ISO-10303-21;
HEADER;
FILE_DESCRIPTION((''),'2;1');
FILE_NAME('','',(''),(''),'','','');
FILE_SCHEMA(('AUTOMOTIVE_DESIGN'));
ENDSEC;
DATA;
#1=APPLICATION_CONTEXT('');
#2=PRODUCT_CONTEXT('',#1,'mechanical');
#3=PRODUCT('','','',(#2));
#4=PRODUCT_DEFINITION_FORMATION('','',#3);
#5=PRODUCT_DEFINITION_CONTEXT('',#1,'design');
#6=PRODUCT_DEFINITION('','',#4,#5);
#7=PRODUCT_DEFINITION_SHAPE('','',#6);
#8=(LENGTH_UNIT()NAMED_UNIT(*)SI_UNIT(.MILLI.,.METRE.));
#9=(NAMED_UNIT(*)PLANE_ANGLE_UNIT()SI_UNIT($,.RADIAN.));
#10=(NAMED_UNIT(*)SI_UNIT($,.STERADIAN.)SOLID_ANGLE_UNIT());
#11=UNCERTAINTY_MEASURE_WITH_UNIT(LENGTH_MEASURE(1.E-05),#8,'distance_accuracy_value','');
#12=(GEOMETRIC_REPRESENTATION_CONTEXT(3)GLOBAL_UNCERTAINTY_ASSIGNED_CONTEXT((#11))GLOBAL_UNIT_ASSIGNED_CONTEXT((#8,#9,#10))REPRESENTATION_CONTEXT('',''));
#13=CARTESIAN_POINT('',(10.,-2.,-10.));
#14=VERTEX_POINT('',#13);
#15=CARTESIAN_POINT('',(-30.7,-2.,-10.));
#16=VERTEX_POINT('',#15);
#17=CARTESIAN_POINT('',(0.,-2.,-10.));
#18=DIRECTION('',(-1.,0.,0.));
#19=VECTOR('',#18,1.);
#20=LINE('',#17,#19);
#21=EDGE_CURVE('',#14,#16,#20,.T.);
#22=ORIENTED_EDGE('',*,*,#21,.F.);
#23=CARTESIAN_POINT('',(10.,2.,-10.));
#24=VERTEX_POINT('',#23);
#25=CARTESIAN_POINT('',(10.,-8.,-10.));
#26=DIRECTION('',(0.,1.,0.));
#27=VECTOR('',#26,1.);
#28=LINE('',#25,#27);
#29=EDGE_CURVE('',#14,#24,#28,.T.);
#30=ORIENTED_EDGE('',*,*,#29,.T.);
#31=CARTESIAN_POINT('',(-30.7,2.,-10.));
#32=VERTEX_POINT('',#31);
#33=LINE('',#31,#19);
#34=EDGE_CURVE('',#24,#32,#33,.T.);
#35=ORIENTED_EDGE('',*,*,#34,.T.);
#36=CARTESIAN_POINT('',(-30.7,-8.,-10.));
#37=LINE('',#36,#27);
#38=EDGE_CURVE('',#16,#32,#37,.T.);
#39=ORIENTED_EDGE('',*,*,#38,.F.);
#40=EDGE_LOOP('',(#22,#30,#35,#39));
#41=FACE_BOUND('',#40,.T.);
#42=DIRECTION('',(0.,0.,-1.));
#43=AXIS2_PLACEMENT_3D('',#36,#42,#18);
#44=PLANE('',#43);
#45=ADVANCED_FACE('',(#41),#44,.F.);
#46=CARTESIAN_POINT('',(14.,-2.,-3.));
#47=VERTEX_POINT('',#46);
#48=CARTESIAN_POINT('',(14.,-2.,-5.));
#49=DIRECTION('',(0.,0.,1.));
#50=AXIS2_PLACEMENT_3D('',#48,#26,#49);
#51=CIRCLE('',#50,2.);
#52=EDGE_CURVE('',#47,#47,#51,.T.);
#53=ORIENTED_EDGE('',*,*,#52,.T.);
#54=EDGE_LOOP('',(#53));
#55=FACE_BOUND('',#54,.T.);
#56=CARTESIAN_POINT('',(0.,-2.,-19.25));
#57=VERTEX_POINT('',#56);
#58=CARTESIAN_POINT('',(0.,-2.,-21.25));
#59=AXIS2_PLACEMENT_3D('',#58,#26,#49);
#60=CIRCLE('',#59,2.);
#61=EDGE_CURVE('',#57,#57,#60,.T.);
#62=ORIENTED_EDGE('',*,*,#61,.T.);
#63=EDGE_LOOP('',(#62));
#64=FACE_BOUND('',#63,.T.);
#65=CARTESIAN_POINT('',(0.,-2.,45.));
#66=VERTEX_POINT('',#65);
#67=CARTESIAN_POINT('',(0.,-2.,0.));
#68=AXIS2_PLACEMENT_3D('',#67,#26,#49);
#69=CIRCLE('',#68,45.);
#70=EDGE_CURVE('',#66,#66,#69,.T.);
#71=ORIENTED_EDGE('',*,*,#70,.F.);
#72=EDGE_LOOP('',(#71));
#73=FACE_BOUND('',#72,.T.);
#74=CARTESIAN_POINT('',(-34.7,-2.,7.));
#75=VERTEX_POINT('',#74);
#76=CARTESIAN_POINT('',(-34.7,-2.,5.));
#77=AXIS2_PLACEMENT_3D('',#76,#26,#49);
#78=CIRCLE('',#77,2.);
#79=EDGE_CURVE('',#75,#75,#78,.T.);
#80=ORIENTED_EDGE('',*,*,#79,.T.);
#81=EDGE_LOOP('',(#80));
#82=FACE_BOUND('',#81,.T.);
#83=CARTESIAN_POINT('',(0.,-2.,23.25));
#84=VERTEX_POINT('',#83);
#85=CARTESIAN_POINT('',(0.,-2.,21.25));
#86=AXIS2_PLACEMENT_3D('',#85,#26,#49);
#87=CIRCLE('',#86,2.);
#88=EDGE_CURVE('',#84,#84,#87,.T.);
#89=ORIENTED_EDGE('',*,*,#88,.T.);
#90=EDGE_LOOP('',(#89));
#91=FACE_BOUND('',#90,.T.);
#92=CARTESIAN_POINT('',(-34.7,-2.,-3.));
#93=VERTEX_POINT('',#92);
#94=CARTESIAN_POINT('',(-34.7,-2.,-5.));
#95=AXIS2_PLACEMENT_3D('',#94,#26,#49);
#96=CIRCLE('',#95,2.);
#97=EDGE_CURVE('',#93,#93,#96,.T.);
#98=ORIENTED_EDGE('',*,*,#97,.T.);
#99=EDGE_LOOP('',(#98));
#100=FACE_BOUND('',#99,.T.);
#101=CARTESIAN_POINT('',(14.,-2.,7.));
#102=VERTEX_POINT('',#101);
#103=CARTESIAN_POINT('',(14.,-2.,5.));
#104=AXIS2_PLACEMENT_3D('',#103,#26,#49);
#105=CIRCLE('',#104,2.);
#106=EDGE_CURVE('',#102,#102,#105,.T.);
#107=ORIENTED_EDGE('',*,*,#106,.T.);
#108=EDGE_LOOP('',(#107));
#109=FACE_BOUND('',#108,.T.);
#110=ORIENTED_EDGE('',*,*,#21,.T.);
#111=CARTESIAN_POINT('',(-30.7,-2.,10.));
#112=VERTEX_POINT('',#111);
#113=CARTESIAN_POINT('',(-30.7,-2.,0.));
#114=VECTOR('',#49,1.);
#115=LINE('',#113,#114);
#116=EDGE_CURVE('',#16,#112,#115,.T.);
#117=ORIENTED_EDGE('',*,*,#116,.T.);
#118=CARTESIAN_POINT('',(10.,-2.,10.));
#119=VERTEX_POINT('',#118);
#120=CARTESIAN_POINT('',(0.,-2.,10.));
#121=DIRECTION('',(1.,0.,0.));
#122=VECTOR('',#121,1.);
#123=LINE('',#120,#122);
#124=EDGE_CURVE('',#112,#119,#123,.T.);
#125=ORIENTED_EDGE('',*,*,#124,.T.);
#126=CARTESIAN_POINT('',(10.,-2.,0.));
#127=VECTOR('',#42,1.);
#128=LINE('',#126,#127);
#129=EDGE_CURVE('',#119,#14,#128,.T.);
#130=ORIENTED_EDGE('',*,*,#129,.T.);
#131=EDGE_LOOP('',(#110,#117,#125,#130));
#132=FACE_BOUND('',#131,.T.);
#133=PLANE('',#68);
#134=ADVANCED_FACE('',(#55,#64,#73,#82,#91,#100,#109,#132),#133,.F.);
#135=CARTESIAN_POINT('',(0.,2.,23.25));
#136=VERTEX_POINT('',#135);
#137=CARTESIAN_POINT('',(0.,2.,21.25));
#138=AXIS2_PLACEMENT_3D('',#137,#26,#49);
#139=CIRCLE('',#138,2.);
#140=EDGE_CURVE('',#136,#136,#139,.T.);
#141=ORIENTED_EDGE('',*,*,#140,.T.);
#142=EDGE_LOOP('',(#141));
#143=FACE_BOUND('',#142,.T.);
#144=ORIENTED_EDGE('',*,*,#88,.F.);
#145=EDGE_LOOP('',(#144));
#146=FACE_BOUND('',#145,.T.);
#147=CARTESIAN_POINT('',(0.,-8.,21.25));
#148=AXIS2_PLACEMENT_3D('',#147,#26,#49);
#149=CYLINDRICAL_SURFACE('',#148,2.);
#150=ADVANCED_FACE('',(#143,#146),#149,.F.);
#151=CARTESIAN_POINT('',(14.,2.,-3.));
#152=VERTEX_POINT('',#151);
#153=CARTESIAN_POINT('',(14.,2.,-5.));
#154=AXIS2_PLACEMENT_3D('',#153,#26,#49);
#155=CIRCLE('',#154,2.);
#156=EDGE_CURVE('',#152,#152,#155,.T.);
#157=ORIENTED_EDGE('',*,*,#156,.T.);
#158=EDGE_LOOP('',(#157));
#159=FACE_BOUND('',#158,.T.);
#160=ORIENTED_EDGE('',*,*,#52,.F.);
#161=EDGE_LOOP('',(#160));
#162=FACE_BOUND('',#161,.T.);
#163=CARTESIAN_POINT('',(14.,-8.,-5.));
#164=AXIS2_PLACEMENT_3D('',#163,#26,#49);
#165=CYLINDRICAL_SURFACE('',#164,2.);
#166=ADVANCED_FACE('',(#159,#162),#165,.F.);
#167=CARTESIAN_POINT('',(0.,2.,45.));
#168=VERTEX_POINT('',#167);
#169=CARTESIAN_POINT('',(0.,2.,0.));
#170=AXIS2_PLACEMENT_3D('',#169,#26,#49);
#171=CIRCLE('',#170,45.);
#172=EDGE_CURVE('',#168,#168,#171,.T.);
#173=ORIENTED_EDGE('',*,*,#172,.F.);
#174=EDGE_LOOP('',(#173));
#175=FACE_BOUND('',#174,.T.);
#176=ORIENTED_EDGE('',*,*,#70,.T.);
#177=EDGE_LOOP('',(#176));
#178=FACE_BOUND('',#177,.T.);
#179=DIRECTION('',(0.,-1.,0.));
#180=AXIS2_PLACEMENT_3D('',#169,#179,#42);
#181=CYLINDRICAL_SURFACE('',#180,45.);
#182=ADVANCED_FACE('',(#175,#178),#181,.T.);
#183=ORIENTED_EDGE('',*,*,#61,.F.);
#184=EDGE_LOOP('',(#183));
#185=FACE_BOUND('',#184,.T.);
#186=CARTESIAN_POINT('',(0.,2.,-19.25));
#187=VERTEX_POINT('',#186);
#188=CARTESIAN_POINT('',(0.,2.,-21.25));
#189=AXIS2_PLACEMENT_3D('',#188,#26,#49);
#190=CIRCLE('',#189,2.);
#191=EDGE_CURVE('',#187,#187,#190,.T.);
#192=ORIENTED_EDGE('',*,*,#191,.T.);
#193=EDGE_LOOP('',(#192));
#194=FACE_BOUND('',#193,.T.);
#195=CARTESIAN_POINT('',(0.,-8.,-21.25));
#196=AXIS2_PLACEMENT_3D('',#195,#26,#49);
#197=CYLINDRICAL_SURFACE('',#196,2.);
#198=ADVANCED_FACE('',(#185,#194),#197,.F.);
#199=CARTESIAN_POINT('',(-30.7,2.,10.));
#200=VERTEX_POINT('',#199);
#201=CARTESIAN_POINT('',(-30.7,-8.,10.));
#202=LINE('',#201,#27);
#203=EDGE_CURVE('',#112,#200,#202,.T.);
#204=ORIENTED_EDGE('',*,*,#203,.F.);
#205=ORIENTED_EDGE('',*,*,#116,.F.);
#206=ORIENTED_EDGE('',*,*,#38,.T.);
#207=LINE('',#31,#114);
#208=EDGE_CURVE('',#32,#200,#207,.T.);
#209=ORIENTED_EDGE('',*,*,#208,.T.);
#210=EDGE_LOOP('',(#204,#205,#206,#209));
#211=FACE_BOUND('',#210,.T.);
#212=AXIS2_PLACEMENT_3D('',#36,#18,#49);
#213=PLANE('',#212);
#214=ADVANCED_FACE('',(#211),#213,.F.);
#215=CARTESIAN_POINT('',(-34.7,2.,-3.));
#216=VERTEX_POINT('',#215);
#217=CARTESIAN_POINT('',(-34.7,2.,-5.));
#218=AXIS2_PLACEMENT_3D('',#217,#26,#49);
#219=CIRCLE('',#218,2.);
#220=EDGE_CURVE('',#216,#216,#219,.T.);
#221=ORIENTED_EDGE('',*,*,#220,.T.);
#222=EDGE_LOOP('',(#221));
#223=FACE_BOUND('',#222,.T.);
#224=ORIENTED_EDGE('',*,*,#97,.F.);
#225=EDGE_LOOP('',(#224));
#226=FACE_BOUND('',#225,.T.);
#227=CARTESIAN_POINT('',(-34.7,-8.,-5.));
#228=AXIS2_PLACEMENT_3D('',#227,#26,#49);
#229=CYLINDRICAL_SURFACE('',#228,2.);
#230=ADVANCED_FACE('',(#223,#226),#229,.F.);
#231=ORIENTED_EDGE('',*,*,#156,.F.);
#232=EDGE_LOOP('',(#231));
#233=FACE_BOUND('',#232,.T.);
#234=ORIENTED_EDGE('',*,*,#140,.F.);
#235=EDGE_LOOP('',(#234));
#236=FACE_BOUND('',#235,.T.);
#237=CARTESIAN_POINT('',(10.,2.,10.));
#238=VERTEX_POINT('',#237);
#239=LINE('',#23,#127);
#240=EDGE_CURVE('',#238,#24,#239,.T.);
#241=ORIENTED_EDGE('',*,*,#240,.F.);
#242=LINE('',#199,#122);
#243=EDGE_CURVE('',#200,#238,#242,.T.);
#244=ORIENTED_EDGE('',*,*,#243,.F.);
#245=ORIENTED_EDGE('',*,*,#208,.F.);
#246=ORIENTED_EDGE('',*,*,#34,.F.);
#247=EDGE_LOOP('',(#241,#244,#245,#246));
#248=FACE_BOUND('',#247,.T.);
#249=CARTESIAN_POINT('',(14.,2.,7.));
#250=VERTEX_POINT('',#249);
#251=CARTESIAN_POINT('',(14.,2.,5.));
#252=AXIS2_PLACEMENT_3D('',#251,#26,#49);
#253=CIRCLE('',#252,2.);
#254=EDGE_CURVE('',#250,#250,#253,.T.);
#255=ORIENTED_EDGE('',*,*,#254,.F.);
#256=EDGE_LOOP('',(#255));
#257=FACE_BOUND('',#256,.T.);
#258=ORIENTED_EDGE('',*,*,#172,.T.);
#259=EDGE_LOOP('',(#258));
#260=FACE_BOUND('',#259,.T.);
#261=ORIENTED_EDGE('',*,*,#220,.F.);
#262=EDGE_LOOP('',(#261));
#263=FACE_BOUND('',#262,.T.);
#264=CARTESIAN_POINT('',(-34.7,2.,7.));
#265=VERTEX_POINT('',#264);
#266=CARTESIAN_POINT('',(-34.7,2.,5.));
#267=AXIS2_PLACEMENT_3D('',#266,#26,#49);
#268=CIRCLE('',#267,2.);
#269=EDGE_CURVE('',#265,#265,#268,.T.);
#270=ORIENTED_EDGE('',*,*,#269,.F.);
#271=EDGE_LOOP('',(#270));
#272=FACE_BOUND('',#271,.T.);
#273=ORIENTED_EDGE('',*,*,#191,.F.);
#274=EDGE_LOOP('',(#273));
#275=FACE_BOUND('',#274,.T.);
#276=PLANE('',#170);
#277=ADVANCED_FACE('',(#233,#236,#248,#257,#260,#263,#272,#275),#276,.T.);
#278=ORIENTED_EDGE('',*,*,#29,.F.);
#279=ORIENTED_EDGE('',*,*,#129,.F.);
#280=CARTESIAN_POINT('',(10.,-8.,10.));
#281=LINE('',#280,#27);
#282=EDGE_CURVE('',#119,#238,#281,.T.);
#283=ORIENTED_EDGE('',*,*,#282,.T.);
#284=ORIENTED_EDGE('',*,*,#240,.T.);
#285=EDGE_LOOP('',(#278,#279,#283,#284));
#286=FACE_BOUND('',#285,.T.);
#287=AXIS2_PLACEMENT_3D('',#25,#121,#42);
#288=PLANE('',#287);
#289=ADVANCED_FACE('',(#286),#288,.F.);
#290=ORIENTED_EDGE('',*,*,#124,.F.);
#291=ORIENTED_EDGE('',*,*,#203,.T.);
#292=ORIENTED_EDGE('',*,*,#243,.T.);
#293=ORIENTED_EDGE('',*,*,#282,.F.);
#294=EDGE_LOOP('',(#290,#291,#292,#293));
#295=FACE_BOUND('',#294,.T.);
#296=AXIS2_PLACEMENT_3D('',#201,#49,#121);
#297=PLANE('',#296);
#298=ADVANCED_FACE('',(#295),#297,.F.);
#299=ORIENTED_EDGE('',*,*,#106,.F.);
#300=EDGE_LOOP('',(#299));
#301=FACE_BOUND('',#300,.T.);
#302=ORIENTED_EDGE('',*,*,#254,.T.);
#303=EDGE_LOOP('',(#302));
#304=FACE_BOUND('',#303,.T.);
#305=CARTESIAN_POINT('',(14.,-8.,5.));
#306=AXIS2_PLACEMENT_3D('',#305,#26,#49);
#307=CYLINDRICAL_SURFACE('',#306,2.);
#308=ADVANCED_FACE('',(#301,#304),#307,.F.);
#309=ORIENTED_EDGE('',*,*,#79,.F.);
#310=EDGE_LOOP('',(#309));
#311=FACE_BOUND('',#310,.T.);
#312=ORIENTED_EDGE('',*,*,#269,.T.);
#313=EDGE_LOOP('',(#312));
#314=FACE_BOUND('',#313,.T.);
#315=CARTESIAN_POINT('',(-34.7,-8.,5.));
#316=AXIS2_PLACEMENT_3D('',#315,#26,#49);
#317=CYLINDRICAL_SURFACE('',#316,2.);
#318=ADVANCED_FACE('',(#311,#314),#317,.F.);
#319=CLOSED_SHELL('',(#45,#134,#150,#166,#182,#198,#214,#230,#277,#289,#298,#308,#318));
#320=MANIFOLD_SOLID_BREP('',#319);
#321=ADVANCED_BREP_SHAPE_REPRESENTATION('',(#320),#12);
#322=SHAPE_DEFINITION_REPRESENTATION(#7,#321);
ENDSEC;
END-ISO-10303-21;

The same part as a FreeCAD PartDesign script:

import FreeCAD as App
import Part
import Sketcher
from FreeCAD import Vector

doc = App.newDocument("Part")
body = doc.addObject("PartDesign::Body", "Body")

sketch1 = body.newObject("Sketcher::SketchObject", "Sketch")
sketch1.AttachmentSupport = (doc.getObject("XZ_Plane"), [""])
sketch1.MapMode = "FlatFace"
sketch1.addGeometry(Part.Circle(Vector(0, 0, 0), Vector(0, 0, 1), 45), False)
sketch1.addConstraint([
    Sketcher.Constraint("Coincident", 0, 3, -1, 1),
    Sketcher.Constraint("Diameter", 0, 90.0),
])
pad1 = body.newObject("PartDesign::Pad", "Pad")
pad1.Profile = sketch1
pad1.Length = 4
pad1.Midplane = True

sketch2 = body.newObject("Sketcher::SketchObject", "Sketch001")
sketch2.AttachmentSupport = (doc.getObject("XZ_Plane"), [""])
sketch2.MapMode = "FlatFace"
sketch2.AttachmentOffset = App.Placement(Vector(0, 0, -2), App.Rotation())
sketch2.addGeometry([
    Part.Circle(Vector(-34.7, -5, 0), Vector(0, 0, 1), 2),
    Part.Circle(Vector(-34.7, 5, 0), Vector(0, 0, 1), 2),
    Part.Circle(Vector(0, 21.2, 0), Vector(0, 0, 1), 2),
    Part.Circle(Vector(0, -21.2, 0), Vector(0, 0, 1), 2),
    Part.Circle(Vector(14, -5, 0), Vector(0, 0, 1), 2),
    Part.Circle(Vector(14, 5, 0), Vector(0, 0, 1), 2),
    Part.LineSegment(Vector(-30.7, -10, 0), Vector(-30.7, 10, 0)),
    Part.LineSegment(Vector(-30.7, 10, 0), Vector(10, 10, 0)),
    Part.LineSegment(Vector(10, 10, 0), Vector(10, -10, 0)),
    Part.LineSegment(Vector(10, -10, 0), Vector(-30.7, -10, 0)),
], False)
sketch2.addConstraint([
    Sketcher.Constraint("Coincident", 6, 2, 7, 1),
    Sketcher.Constraint("Coincident", 7, 2, 8, 1),
    Sketcher.Constraint("Coincident", 8, 2, 9, 1),
    Sketcher.Constraint("Coincident", 9, 2, 6, 1),
    Sketcher.Constraint("Vertical", 6),
    Sketcher.Constraint("Horizontal", 7),
    Sketcher.Constraint("Vertical", 8),
    Sketcher.Constraint("Horizontal", 9),
    Sketcher.Constraint("Equal", 0, 1),
    Sketcher.Constraint("Equal", 1, 2),
    Sketcher.Constraint("Equal", 2, 3),
    Sketcher.Constraint("Equal", 3, 4),
    Sketcher.Constraint("Equal", 4, 5),
    Sketcher.Constraint("Symmetric", 2, 3, 3, 3, -1, 1),
    Sketcher.Constraint("Symmetric", 0, 3, 1, 3, -1),
    Sketcher.Constraint("Symmetric", 4, 3, 5, 3, -1),
    Sketcher.Constraint("PointOnObject", 2, 3, -2),
    Sketcher.Constraint("Horizontal", 0, 3, 4, 3),
    Sketcher.Constraint("Diameter", 0, 4.0),
    Sketcher.Constraint("DistanceY", 6, 1, 6, 2, 20.0),
    Sketcher.Constraint("DistanceX", 7, 1, 7, 2, 40.7),
    Sketcher.Constraint("DistanceY", 0, 3, -1, 1, 5.0),
    Sketcher.Constraint("DistanceX", -1, 1, 4, 3, 14.0),
    Sketcher.Constraint("DistanceY", -1, 1, 6, 2, 10.0),
    Sketcher.Constraint("DistanceX", -1, 1, 7, 2, 10.0),
    Sketcher.Constraint("DistanceX", 1, 3, 6, 2, 4.0),
    Sketcher.Constraint("DistanceY", 3, 3, 2, 3, 42.5),
])
pocket1 = body.newObject("PartDesign::Pocket", "Pocket")
pocket1.Profile = sketch2
pocket1.Length = 10
pocket1.Reversed = True

doc.recompute()
